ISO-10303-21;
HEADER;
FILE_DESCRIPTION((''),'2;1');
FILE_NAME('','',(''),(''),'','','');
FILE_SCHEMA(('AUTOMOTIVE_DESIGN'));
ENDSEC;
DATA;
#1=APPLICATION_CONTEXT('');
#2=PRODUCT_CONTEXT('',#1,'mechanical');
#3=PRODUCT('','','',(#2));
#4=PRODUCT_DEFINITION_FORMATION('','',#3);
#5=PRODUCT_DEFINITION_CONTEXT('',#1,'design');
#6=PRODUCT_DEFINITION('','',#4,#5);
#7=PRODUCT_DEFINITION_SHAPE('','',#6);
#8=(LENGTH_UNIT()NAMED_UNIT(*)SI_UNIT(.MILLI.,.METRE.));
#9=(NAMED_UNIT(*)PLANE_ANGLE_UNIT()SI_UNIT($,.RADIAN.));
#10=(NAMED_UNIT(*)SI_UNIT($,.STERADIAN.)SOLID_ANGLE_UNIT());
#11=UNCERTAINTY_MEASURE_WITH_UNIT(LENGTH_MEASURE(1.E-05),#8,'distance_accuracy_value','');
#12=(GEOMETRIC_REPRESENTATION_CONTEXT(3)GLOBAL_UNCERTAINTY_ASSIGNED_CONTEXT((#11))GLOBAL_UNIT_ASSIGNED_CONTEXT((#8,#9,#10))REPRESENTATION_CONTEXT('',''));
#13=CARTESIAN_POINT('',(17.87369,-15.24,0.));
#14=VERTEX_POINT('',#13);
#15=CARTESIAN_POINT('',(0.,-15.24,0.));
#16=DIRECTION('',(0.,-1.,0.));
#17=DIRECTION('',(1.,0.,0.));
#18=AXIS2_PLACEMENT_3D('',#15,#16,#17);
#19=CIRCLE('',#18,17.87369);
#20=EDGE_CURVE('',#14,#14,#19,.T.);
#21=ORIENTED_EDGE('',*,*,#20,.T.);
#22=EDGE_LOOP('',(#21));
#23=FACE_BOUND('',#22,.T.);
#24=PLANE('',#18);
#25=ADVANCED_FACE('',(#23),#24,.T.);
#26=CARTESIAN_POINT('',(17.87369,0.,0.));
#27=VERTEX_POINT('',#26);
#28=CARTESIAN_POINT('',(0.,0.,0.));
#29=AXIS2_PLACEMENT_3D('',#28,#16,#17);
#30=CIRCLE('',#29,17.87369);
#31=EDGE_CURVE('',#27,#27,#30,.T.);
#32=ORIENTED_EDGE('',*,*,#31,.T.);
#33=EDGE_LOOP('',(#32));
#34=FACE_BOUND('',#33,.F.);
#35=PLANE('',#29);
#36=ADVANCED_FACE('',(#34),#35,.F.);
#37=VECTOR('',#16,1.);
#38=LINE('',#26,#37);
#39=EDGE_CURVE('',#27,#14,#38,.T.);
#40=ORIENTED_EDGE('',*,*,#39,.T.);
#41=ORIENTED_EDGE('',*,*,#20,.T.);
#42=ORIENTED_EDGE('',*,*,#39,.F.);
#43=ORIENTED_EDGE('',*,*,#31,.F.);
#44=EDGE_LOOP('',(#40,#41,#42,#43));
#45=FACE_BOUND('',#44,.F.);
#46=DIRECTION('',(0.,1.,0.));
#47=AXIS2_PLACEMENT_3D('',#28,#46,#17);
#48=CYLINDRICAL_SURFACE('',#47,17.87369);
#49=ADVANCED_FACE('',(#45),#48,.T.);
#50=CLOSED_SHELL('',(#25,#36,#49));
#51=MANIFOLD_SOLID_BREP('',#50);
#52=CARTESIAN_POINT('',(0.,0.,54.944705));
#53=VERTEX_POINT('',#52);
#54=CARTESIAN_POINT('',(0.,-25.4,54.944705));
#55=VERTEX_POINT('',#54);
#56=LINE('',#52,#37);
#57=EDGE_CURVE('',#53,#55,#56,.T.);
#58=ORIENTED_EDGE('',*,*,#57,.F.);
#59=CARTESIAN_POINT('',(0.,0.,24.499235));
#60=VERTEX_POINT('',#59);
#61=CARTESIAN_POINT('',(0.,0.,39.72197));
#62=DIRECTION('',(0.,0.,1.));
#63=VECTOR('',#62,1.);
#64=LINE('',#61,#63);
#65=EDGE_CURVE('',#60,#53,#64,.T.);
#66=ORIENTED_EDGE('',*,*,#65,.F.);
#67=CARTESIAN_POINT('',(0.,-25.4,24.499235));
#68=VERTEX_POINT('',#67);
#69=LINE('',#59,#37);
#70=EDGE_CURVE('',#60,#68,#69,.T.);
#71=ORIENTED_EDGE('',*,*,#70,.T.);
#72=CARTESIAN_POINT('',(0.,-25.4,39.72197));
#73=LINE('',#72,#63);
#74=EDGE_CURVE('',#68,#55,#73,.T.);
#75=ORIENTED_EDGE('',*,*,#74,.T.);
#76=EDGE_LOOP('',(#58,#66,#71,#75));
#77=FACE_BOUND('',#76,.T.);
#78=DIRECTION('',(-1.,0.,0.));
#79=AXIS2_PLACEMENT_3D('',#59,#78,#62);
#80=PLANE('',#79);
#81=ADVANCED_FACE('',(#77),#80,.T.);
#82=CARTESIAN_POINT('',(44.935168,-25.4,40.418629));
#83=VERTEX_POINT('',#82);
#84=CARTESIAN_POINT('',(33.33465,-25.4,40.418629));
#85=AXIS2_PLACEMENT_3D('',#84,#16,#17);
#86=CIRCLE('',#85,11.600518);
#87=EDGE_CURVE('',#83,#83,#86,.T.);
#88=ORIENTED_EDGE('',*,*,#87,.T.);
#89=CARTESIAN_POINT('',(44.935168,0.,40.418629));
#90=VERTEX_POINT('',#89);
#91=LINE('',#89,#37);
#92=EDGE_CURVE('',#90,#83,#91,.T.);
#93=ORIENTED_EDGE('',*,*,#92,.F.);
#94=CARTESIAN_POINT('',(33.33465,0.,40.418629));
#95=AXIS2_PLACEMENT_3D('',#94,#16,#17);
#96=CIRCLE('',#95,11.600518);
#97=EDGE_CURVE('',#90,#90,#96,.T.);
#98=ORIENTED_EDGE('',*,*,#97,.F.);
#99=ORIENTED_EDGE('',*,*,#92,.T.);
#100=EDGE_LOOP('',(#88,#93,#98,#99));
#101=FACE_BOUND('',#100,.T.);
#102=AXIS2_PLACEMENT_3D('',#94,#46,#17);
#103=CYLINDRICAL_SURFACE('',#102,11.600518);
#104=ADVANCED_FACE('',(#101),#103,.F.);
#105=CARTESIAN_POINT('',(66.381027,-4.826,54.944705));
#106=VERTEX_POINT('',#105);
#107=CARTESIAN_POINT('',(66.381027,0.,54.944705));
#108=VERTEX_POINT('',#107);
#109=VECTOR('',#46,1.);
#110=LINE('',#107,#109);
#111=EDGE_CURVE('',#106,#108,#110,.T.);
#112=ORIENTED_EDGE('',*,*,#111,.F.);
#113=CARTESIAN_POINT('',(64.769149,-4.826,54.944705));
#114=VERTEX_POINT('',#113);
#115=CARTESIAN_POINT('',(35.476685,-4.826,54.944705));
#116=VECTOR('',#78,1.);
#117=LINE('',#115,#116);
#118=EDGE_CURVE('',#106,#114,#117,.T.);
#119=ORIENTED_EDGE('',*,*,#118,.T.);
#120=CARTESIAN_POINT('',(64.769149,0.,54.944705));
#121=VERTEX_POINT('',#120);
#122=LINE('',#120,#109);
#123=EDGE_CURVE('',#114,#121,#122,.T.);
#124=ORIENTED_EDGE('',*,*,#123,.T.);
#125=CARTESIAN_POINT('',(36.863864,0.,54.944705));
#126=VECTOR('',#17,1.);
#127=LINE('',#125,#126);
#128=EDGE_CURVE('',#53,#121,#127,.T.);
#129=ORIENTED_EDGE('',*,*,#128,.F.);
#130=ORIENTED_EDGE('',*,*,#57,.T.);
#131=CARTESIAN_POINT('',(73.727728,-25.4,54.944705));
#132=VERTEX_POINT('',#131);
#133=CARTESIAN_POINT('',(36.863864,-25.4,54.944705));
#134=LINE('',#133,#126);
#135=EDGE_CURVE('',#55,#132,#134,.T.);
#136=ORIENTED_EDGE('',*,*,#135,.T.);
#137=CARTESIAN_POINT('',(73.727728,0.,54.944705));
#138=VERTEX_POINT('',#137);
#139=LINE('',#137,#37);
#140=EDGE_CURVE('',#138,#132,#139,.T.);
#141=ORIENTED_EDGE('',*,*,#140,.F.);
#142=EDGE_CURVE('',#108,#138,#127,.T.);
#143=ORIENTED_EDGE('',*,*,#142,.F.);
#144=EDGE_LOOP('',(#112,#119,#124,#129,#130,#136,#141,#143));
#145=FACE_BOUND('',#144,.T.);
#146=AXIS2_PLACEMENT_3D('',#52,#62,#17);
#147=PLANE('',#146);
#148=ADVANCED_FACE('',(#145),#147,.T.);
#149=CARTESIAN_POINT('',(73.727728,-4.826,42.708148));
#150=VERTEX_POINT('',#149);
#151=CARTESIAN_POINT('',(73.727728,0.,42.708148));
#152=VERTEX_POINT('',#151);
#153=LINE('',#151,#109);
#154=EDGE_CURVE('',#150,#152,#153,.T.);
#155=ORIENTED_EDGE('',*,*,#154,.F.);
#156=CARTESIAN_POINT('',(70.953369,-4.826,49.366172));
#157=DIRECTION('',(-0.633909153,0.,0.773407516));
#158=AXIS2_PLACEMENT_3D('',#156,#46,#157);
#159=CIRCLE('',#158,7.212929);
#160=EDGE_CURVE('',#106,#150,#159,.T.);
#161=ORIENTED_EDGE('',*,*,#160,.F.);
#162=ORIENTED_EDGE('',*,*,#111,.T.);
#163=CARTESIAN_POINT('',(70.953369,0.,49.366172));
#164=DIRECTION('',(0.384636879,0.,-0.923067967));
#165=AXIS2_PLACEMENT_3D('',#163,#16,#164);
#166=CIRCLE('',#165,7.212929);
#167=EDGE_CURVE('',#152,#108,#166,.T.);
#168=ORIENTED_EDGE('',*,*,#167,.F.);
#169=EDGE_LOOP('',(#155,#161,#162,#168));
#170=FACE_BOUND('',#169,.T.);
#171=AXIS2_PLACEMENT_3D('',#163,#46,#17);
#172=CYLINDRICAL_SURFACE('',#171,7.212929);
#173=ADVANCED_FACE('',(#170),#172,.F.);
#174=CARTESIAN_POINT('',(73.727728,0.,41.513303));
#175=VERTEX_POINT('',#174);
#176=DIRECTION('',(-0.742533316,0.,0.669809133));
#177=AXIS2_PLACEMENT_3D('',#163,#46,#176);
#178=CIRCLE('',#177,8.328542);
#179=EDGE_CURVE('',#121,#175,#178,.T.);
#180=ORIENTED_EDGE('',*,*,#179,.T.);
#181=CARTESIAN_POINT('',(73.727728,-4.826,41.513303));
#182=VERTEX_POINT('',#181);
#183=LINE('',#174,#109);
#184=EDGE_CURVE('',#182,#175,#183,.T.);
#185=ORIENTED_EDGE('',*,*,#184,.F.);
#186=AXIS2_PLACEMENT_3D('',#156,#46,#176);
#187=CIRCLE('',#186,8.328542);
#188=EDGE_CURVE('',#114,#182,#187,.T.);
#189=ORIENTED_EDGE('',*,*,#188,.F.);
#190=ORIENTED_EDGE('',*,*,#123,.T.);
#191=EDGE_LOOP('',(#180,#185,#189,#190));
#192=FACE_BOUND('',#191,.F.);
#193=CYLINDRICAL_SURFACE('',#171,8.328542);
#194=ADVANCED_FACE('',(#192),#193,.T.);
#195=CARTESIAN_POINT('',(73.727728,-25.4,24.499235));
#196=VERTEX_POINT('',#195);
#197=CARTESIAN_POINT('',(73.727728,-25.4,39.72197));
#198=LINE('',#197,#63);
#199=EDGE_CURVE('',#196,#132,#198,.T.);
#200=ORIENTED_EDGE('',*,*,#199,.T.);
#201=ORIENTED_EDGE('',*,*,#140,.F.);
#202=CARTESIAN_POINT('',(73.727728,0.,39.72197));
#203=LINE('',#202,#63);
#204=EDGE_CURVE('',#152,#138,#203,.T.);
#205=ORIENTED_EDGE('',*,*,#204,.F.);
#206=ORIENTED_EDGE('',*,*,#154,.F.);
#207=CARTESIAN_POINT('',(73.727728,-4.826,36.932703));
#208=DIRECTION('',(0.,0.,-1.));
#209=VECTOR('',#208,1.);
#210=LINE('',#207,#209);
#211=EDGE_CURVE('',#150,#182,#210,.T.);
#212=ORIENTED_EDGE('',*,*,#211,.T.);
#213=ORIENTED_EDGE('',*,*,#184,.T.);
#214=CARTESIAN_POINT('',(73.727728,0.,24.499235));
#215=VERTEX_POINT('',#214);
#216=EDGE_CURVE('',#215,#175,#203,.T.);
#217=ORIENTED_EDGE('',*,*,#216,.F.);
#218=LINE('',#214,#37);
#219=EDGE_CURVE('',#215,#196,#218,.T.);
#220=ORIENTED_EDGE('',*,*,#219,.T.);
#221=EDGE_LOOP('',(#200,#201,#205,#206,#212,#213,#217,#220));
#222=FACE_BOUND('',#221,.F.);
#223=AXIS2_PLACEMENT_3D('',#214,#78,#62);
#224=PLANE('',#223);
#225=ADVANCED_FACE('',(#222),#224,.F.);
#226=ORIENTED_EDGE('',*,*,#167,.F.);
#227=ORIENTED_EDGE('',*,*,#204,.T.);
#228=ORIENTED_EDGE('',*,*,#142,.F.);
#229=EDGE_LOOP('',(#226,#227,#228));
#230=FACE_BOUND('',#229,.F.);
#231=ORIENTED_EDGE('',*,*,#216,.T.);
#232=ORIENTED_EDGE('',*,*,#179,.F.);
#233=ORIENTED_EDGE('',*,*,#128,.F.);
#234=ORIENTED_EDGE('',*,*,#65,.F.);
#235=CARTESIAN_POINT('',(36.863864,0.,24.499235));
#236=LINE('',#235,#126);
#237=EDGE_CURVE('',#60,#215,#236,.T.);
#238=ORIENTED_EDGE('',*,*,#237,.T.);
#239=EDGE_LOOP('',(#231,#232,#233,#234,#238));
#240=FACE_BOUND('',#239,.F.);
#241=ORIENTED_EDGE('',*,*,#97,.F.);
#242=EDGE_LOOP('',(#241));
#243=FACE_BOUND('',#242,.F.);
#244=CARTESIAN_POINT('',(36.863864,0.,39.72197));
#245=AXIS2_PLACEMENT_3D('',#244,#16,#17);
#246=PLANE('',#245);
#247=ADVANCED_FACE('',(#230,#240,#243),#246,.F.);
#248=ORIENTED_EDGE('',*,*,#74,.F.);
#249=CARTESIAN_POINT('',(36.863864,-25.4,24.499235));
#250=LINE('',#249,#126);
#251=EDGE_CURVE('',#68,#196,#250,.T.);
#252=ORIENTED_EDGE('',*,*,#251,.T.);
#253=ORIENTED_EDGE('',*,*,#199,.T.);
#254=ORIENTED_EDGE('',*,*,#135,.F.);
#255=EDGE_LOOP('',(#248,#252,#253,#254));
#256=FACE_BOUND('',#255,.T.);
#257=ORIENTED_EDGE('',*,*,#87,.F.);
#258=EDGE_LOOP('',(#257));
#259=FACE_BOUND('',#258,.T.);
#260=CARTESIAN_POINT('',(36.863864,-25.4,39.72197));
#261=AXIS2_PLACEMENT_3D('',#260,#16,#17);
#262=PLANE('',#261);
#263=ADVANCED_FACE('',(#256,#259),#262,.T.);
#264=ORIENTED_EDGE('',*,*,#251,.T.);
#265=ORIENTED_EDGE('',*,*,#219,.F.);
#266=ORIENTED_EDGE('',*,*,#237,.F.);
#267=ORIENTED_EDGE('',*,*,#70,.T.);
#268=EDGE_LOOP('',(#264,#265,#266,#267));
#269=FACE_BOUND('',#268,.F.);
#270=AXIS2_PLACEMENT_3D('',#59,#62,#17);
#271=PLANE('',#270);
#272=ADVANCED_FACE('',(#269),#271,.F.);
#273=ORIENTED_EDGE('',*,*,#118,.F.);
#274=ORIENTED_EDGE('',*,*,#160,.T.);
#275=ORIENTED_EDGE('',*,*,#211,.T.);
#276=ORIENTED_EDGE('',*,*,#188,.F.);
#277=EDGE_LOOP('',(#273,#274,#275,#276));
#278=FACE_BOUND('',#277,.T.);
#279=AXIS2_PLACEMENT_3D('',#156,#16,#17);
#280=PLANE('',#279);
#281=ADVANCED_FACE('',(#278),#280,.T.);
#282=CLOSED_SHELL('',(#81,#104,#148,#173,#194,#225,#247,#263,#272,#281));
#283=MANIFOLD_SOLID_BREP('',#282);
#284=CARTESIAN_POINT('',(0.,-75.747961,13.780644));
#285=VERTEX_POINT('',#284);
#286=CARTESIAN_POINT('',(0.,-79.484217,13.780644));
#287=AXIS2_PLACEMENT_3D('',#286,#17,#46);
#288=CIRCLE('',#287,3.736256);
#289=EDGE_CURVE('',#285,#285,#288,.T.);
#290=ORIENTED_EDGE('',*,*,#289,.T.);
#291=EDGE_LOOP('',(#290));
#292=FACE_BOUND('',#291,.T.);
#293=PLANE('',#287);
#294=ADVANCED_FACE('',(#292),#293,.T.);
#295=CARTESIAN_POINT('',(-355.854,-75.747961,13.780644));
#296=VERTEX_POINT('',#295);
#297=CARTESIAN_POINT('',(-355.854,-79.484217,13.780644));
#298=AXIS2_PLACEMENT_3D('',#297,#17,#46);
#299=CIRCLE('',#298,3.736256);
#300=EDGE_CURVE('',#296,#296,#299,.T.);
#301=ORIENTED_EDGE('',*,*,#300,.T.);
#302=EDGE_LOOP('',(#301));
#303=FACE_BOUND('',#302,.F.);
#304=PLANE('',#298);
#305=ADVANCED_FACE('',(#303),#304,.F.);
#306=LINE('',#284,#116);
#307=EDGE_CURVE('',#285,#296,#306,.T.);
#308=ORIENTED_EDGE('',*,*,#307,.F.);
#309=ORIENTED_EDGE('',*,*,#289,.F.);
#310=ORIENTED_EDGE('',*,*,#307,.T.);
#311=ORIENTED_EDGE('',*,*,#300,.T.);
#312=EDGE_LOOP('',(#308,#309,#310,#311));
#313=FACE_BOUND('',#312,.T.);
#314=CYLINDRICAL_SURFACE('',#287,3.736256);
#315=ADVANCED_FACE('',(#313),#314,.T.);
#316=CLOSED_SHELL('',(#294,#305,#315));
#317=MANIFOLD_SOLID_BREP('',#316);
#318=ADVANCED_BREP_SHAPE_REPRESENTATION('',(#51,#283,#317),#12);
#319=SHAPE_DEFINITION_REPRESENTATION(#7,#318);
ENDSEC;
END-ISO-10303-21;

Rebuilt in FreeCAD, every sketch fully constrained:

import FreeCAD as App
import Part
import Sketcher
Q = App.Units.Quantity


def add_polygon(sketch, points):
    """Adds a closed chain of lines whose ends are joined by coincident constraints."""
    first, n = sketch.GeometryCount, len(points)
    for a, b in zip(points, points[1:] + points[:1]):
        sketch.addGeometry(Part.LineSegment(App.Vector(*a, 0), App.Vector(*b, 0)), False)
    for i in range(n):
        sketch.addConstraint(Sketcher.Constraint("Coincident", first + i, 2, first + (i + 1) % n, 1))

doc = App.newDocument("Part")
params = doc.addObject("Spreadsheet::Sheet", "Params")
for row, (alias, value) in enumerate([
    ("pad1_length", "14.01 in"),
    ("pad2_length", "0.19 in"),
    ("pad3_length", "1 in"),
    ("pad4_length", "0.6 in"),
], start=1):
    params.set(f"A{row}", alias)
    params.set(f"B{row}", "=" + value)
    params.setAlias(f"B{row}", alias)

body = doc.addObject("PartDesign::Body", "Body")

# Sketch on YZ plane
sketch1 = body.newObject("Sketcher::SketchObject", "Sketch")
sketch1.AttachmentSupport = (doc.getObject("YZ_Plane"), [""])
sketch1.MapMode = "FlatFace"
sketch1.addGeometry(Part.Circle(App.Vector(-79.5, 13.8, 0), App.Vector(0, 0, 1), 3.7), False)
sketch1.addConstraint([
    Sketcher.Constraint("Diameter", 0, 7.472512),
    Sketcher.Constraint("DistanceX", 0, 3, -1, 1, Q("3.1292999 in")),
    Sketcher.Constraint("DistanceY", -1, 1, 0, 3, 13.780644),
])
pad1 = body.newObject("PartDesign::Pad", "Pad")
pad1.Profile = sketch1
pad1.setExpression("Length", "Params.pad1_length")
pad1.Reversed = True
body2 = doc.addObject("PartDesign::Body", "Body001")

# Sketch on XZ plane
sketch2 = body2.newObject("Sketcher::SketchObject", "Sketch001")
sketch2.AttachmentSupport = (doc.getObject("XZ_Plane001"), [""])
sketch2.MapMode = "FlatFace"
sketch2.addGeometry([
    Part.Circle(App.Vector(71, 49, 0), App.Vector(0, 0, 1), 8),
    Part.Circle(App.Vector(71, 49, 0), App.Vector(0, 0, 1), 7),
], False)
sketch2.addConstraint([
    Sketcher.Constraint("Coincident", 1, 3, 0, 3),
    Sketcher.Constraint("Diameter", 0, 16.657084),
    Sketcher.Constraint("Diameter", 1, 14.425858),
    Sketcher.Constraint("DistanceX", -1, 1, 0, 3, 70.953369),
    Sketcher.Constraint("DistanceY", -1, 1, 0, 3, 49.366172),
])
pad2 = body2.newObject("PartDesign::Pad", "Pad001")
pad2.Profile = sketch2
pad2.setExpression("Length", "Params.pad2_length")

# Sketch on XZ plane
sketch3 = body2.newObject("Sketcher::SketchObject", "Sketch002")
sketch3.AttachmentSupport = (doc.getObject("XZ_Plane001"), [""])
sketch3.MapMode = "FlatFace"
add_polygon(sketch3, [(0, 55), (0, 24), (74, 24), (74, 55)])  # lines 0-3
sketch3.addGeometry(Part.Circle(App.Vector(33, 40, 0), App.Vector(0, 0, 1), 12), False)  # 4
sketch3.addConstraint([
    Sketcher.Constraint("Vertical", 0),
    Sketcher.Constraint("Horizontal", 1),
    Sketcher.Constraint("Vertical", 2),
    Sketcher.Constraint("Horizontal", 3),
    Sketcher.Constraint("PointOnObject", 0, 2, -2),
    Sketcher.Constraint("Diameter", 4, 23.201036),
    Sketcher.Constraint("DistanceY", 0, 2, 0, 1, 30.445471),
    Sketcher.Constraint("DistanceX", 1, 1, 1, 2, 73.727727),
    Sketcher.Constraint("DistanceX", -1, 1, 4, 3, 33.33465),
    Sketcher.Constraint("DistanceY", -1, 1, 4, 3, 40.418629),
    Sketcher.Constraint("DistanceY", -1, 1, 0, 2, 24.499235),
])
pad3 = body2.newObject("PartDesign::Pad", "Pad002")
pad3.Profile = sketch3
pad3.setExpression("Length", "Params.pad3_length")
body3 = doc.addObject("PartDesign::Body", "Body002")

# Sketch on XZ plane
sketch4 = body3.newObject("Sketcher::SketchObject", "Sketch003")
sketch4.AttachmentSupport = (doc.getObject("XZ_Plane002"), [""])
sketch4.MapMode = "FlatFace"
sketch4.addGeometry(Part.Circle(App.Vector(0, 0, 0), App.Vector(0, 0, 1), 18), False)
sketch4.addConstraint([
    Sketcher.Constraint("Coincident", 0, 3, -1, 1),
    Sketcher.Constraint("Diameter", 0, 35.74738),
])
pad4 = body3.newObject("PartDesign::Pad", "Pad003")
pad4.Profile = sketch4
pad4.setExpression("Length", "Params.pad4_length")

doc.recompute()
